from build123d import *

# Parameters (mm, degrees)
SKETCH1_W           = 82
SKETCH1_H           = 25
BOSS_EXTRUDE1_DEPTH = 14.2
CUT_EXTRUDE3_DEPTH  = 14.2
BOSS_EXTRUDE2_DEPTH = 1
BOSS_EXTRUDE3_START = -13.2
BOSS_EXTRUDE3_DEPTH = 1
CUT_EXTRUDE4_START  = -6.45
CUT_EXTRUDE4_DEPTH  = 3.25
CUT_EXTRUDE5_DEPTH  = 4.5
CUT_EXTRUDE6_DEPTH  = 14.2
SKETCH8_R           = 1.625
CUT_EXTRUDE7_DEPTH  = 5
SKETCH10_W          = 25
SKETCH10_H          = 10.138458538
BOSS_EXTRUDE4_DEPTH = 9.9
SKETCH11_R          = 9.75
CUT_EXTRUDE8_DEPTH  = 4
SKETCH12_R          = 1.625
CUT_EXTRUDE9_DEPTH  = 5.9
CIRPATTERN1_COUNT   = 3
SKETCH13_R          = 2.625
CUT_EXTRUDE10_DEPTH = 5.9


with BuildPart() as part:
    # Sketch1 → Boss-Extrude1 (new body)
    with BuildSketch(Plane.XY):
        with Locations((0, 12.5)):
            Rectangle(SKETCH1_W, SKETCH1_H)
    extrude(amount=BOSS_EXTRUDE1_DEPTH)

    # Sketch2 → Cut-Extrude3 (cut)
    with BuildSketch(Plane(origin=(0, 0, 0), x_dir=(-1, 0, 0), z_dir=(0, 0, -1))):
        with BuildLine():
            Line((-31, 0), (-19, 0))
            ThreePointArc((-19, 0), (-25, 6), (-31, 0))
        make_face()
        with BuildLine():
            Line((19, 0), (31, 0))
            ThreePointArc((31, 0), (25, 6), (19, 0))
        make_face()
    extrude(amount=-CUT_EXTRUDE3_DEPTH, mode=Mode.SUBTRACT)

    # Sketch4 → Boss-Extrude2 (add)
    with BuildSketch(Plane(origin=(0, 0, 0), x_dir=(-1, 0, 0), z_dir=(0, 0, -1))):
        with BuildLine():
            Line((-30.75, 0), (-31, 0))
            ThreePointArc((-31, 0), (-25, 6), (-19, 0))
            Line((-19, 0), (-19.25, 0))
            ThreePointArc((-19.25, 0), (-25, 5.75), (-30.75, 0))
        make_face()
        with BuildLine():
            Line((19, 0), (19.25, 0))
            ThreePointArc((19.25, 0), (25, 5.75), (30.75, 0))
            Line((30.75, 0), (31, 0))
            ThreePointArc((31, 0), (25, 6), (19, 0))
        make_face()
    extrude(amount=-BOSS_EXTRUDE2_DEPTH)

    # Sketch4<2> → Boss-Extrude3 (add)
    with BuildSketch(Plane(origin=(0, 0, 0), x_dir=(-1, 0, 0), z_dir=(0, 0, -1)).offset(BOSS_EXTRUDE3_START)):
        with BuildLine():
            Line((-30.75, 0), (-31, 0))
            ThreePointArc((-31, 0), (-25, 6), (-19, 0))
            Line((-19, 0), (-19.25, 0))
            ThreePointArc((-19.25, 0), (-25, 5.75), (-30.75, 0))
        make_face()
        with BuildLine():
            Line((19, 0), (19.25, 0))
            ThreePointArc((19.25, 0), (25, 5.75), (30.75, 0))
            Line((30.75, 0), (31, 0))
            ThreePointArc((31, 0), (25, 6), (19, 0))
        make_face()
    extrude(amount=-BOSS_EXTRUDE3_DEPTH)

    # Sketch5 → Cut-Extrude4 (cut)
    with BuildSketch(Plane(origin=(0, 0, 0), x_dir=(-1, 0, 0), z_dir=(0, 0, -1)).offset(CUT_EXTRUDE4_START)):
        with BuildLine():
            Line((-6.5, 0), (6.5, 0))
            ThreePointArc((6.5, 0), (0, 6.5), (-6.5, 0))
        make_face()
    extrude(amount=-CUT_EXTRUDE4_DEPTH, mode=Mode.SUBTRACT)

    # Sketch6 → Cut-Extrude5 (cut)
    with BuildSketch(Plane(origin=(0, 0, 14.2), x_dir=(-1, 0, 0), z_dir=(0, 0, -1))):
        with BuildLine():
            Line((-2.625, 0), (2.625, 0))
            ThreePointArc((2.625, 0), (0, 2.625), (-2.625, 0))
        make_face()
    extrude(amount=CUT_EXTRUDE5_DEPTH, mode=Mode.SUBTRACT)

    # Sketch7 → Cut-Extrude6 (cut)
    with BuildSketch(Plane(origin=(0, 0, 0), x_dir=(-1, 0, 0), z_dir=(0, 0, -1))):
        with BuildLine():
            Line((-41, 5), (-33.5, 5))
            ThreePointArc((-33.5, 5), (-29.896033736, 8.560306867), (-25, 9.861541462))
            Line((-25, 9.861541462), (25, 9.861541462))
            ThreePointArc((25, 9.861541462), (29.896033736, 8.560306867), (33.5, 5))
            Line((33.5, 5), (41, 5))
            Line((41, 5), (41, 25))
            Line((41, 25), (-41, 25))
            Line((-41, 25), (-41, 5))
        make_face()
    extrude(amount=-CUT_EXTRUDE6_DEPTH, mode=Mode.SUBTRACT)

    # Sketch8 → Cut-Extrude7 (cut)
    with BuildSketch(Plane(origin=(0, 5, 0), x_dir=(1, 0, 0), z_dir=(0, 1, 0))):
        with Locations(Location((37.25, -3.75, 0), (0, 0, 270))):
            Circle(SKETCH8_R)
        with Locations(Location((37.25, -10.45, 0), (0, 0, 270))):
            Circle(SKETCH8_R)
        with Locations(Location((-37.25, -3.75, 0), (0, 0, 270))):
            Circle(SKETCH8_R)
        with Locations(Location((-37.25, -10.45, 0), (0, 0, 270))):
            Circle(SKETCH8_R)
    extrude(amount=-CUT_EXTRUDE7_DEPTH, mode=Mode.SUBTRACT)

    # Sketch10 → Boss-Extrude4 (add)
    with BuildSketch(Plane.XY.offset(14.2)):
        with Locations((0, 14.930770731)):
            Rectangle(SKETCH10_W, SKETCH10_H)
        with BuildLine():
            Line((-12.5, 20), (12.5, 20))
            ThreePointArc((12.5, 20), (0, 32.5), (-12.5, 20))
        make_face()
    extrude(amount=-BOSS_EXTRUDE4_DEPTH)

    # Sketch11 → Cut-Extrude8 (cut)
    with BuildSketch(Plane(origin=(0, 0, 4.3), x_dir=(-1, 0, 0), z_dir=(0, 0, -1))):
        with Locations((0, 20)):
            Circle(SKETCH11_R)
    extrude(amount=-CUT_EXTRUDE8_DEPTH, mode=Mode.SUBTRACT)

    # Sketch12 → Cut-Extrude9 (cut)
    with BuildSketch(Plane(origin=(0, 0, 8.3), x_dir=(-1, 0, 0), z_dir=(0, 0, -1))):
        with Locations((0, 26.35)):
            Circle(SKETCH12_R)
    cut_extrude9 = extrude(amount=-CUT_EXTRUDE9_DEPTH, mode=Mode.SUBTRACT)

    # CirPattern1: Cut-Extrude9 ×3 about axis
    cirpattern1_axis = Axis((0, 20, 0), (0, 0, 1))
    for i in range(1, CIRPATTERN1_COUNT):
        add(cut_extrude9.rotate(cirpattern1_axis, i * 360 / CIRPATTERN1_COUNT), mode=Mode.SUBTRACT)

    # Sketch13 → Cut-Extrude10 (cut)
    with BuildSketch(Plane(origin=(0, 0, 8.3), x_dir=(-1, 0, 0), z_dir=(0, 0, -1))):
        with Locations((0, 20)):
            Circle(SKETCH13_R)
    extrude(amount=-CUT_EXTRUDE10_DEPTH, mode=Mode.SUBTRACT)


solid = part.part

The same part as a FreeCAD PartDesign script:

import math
import FreeCAD as App
import Part
import Sketcher
Q = App.Units.Quantity


def add_polygon(sketch, points):
    """Adds a closed chain of lines whose ends are joined by coincident constraints."""
    first, n = sketch.GeometryCount, len(points)
    for a, b in zip(points, points[1:] + points[:1]):
        sketch.addGeometry(Part.LineSegment(App.Vector(*a, 0), App.Vector(*b, 0)), False)
    for i in range(n):
        sketch.addConstraint(Sketcher.Constraint("Coincident", first + i, 2, first + (i + 1) % n, 1))

doc = App.newDocument("Part")
body = doc.addObject("PartDesign::Body", "Body")

sketch1 = body.newObject("Sketcher::SketchObject", "Sketch")
sketch1.AttachmentSupport = (doc.getObject("XY_Plane"), [""])
sketch1.MapMode = "FlatFace"
add_polygon(sketch1, [(-41, 25), (-41, 0), (41, 0), (41, 25)])
sketch1.addConstraint(Sketcher.Constraint("Vertical", 0))
sketch1.addConstraint(Sketcher.Constraint("Horizontal", 1))
sketch1.addConstraint(Sketcher.Constraint("Vertical", 2))
sketch1.addConstraint(Sketcher.Constraint("Horizontal", 3))
sketch1.addConstraint(Sketcher.Constraint("Symmetric", 0, 2, 1, 2, -1, 1))
sketch1.addConstraint(Sketcher.Constraint("DistanceX", 1, 1, 1, 2, Q("82 mm")))
sketch1.addConstraint(Sketcher.Constraint("DistanceY", 0, 2, 0, 1, Q("25 mm")))
pad1 = body.newObject("PartDesign::Pad", "Pad")
pad1.Profile = sketch1
pad1.Length = 14.2

sketch2 = body.newObject("Sketcher::SketchObject", "Sketch001")
sketch2.AttachmentSupport = (doc.getObject("XY_Plane"), [""])
sketch2.MapMode = "FlatFace"
sketch2.addGeometry(Part.LineSegment(App.Vector(31, 0, 0), App.Vector(19, 0, 0)), False)
sketch2.addGeometry(Part.ArcOfCircle(Part.Circle(App.Vector(25, 0, 0), App.Vector(0, 0, 1), 6), math.radians(0), math.radians(180)), False)
sketch2.addGeometry(Part.LineSegment(App.Vector(-19, 0, 0), App.Vector(-31, 0, 0)), False)
sketch2.addGeometry(Part.ArcOfCircle(Part.Circle(App.Vector(-25, 0, 0), App.Vector(0, 0, 1), 6), math.radians(0), math.radians(180)), False)
sketch2.addConstraint(Sketcher.Constraint("Coincident", 0, 1, 1, 1))
sketch2.addConstraint(Sketcher.Constraint("Coincident", 1, 2, 0, 2))
sketch2.addConstraint(Sketcher.Constraint("Coincident", 2, 1, 3, 1))
sketch2.addConstraint(Sketcher.Constraint("Coincident", 3, 2, 2, 2))
sketch2.addConstraint(Sketcher.Constraint("Horizontal", 0))
sketch2.addConstraint(Sketcher.Constraint("Horizontal", 2))
sketch2.addConstraint(Sketcher.Constraint("Equal", 1, 3))
sketch2.addConstraint(Sketcher.Constraint("Symmetric", 1, 3, 3, 3, -1, 1))
sketch2.addConstraint(Sketcher.Constraint("PointOnObject", 1, 3, -1))
sketch2.addConstraint(Sketcher.Constraint("PointOnObject", 0, 1, -1))
sketch2.addConstraint(Sketcher.Constraint("PointOnObject", 2, 1, -1))
sketch2.addConstraint(Sketcher.Constraint("Radius", 1, Q("6 mm")))
sketch2.addConstraint(Sketcher.Constraint("DistanceX", -1, 1, 1, 3, Q("25 mm")))
pocket1 = body.newObject("PartDesign::Pocket", "Pocket")
pocket1.Profile = sketch2
pocket1.Length = 14.2
pocket1.Reversed = True

sketch3 = body.newObject("Sketcher::SketchObject", "Sketch002")
sketch3.AttachmentSupport = (doc.getObject("XY_Plane"), [""])
sketch3.MapMode = "FlatFace"
sketch3.addGeometry(Part.LineSegment(App.Vector(31, 0, 0), App.Vector(30.75, 0, 0)), False)
sketch3.addGeometry(Part.ArcOfCircle(Part.Circle(App.Vector(25, 0, 0), App.Vector(0, 0, 1), 5.75), math.radians(0), math.radians(180)), False)
sketch3.addGeometry(Part.LineSegment(App.Vector(19.25, 0, 0), App.Vector(19, 0, 0)), False)
sketch3.addGeometry(Part.ArcOfCircle(Part.Circle(App.Vector(25, 0, 0), App.Vector(0, 0, 1), 6), math.radians(0), math.radians(180)), False)
sketch3.addGeometry(Part.LineSegment(App.Vector(-19, 0, 0), App.Vector(-19.25, 0, 0)), False)
sketch3.addGeometry(Part.ArcOfCircle(Part.Circle(App.Vector(-25, 0, 0), App.Vector(0, 0, 1), 5.75), math.radians(0), math.radians(180)), False)
sketch3.addGeometry(Part.LineSegment(App.Vector(-30.75, 0, 0), App.Vector(-31, 0, 0)), False)
sketch3.addGeometry(Part.ArcOfCircle(Part.Circle(App.Vector(-25, 0, 0), App.Vector(0, 0, 1), 6), math.radians(0), math.radians(180)), False)
sketch3.addConstraint(Sketcher.Constraint("Coincident", 0, 2, 1, 1))
sketch3.addConstraint(Sketcher.Constraint("Coincident", 1, 2, 2, 1))
sketch3.addConstraint(Sketcher.Constraint("Coincident", 2, 2, 3, 2))
sketch3.addConstraint(Sketcher.Constraint("Coincident", 3, 1, 0, 1))
sketch3.addConstraint(Sketcher.Constraint("Coincident", 4, 2, 5, 1))
sketch3.addConstraint(Sketcher.Constraint("Coincident", 5, 2, 6, 1))
sketch3.addConstraint(Sketcher.Constraint("Coincident", 6, 2, 7, 2))
sketch3.addConstraint(Sketcher.Constraint("Coincident", 7, 1, 4, 1))
sketch3.addConstraint(Sketcher.Constraint("Horizontal", 0))
sketch3.addConstraint(Sketcher.Constraint("Horizontal", 2))
sketch3.addConstraint(Sketcher.Constraint("Horizontal", 4))
sketch3.addConstraint(Sketcher.Constraint("Horizontal", 6))
sketch3.addConstraint(Sketcher.Constraint("Coincident", 3, 3, 1, 3))
sketch3.addConstraint(Sketcher.Constraint("Coincident", 7, 3, 5, 3))
sketch3.addConstraint(Sketcher.Constraint("Equal", 1, 5))
sketch3.addConstraint(Sketcher.Constraint("Equal", 3, 7))
sketch3.addConstraint(Sketcher.Constraint("Symmetric", 1, 3, 5, 3, -1, 1))
sketch3.addConstraint(Sketcher.Constraint("PointOnObject", 1, 3, -1))
sketch3.addConstraint(Sketcher.Constraint("PointOnObject", 0, 2, -1))
sketch3.addConstraint(Sketcher.Constraint("PointOnObject", 1, 2, -1))
sketch3.addConstraint(Sketcher.Constraint("PointOnObject", 4, 2, -1))
sketch3.addConstraint(Sketcher.Constraint("PointOnObject", 5, 2, -1))
sketch3.addConstraint(Sketcher.Constraint("Radius", 3, Q("6 mm")))
sketch3.addConstraint(Sketcher.Constraint("Radius", 1, Q("5.75 mm")))
sketch3.addConstraint(Sketcher.Constraint("DistanceX", -1, 1, 1, 3, Q("25 mm")))
pad2 = body.newObject("PartDesign::Pad", "Pad001")
pad2.Profile = sketch3
pad2.Length = 1

sketch4 = body.newObject("Sketcher::SketchObject", "Sketch003")
sketch4.AttachmentSupport = (doc.getObject("XY_Plane"), [""])
sketch4.MapMode = "FlatFace"
sketch4.AttachmentOffset = App.Placement(App.Vector(0, 0, 13.2), App.Rotation())
sketch4.addGeometry(Part.LineSegment(App.Vector(31, 0, 0), App.Vector(30.75, 0, 0)), False)
sketch4.addGeometry(Part.ArcOfCircle(Part.Circle(App.Vector(25, 0, 0), App.Vector(0, 0, 1), 5.75), math.radians(0), math.radians(180)), False)
sketch4.addGeometry(Part.LineSegment(App.Vector(19.25, 0, 0), App.Vector(19, 0, 0)), False)
sketch4.addGeometry(Part.ArcOfCircle(Part.Circle(App.Vector(25, 0, 0), App.Vector(0, 0, 1), 6), math.radians(0), math.radians(180)), False)
sketch4.addGeometry(Part.LineSegment(App.Vector(-19, 0, 0), App.Vector(-19.25, 0, 0)), False)
sketch4.addGeometry(Part.ArcOfCircle(Part.Circle(App.Vector(-25, 0, 0), App.Vector(0, 0, 1), 5.75), math.radians(0), math.radians(180)), False)
sketch4.addGeometry(Part.LineSegment(App.Vector(-30.75, 0, 0), App.Vector(-31, 0, 0)), False)
sketch4.addGeometry(Part.ArcOfCircle(Part.Circle(App.Vector(-25, 0, 0), App.Vector(0, 0, 1), 6), math.radians(0), math.radians(180)), False)
sketch4.addConstraint(Sketcher.Constraint("Coincident", 0, 2, 1, 1))
sketch4.addConstraint(Sketcher.Constraint("Coincident", 1, 2, 2, 1))
sketch4.addConstraint(Sketcher.Constraint("Coincident", 2, 2, 3, 2))
sketch4.addConstraint(Sketcher.Constraint("Coincident", 3, 1, 0, 1))
sketch4.addConstraint(Sketcher.Constraint("Coincident", 4, 2, 5, 1))
sketch4.addConstraint(Sketcher.Constraint("Coincident", 5, 2, 6, 1))
sketch4.addConstraint(Sketcher.Constraint("Coincident", 6, 2, 7, 2))
sketch4.addConstraint(Sketcher.Constraint("Coincident", 7, 1, 4, 1))
sketch4.addConstraint(Sketcher.Constraint("Horizontal", 0))
sketch4.addConstraint(Sketcher.Constraint("Horizontal", 2))
sketch4.addConstraint(Sketcher.Constraint("Horizontal", 4))
sketch4.addConstraint(Sketcher.Constraint("Horizontal", 6))
sketch4.addConstraint(Sketcher.Constraint("Coincident", 3, 3, 1, 3))
sketch4.addConstraint(Sketcher.Constraint("Coincident", 7, 3, 5, 3))
sketch4.addConstraint(Sketcher.Constraint("Equal", 1, 5))
sketch4.addConstraint(Sketcher.Constraint("Equal", 3, 7))
sketch4.addConstraint(Sketcher.Constraint("Symmetric", 1, 3, 5, 3, -1, 1))
sketch4.addConstraint(Sketcher.Constraint("PointOnObject", 1, 3, -1))
sketch4.addConstraint(Sketcher.Constraint("PointOnObject", 0, 2, -1))
sketch4.addConstraint(Sketcher.Constraint("PointOnObject", 1, 2, -1))
sketch4.addConstraint(Sketcher.Constraint("PointOnObject", 4, 2, -1))
sketch4.addConstraint(Sketcher.Constraint("PointOnObject", 5, 2, -1))
sketch4.addConstraint(Sketcher.Constraint("Radius", 3, Q("6 mm")))
sketch4.addConstraint(Sketcher.Constraint("Radius", 1, Q("5.75 mm")))
sketch4.addConstraint(Sketcher.Constraint("DistanceX", -1, 1, 1, 3, Q("25 mm")))
pad3 = body.newObject("PartDesign::Pad", "Pad002")
pad3.Profile = sketch4
pad3.Length = 1

sketch5 = body.newObject("Sketcher::SketchObject", "Sketch004")
sketch5.AttachmentSupport = (doc.getObject("XY_Plane"), [""])
sketch5.MapMode = "FlatFace"
sketch5.AttachmentOffset = App.Placement(App.Vector(0, 0, 6.45), App.Rotation())
sketch5.addGeometry(Part.LineSegment(App.Vector(6, 0, 0), App.Vector(-6, 0, 0)), False)
sketch5.addGeometry(Part.ArcOfCircle(Part.Circle(App.Vector(0, 0, 0), App.Vector(0, 0, 1), 6), math.radians(0), math.radians(180)), False)
sketch5.addConstraint(Sketcher.Constraint("Coincident", 0, 1, 1, 1))
sketch5.addConstraint(Sketcher.Constraint("Coincident", 1, 2, 0, 2))
sketch5.addConstraint(Sketcher.Constraint("Horizontal", 0))
sketch5.addConstraint(Sketcher.Constraint("Coincident", 1, 3, -1, 1))
sketch5.addConstraint(Sketcher.Constraint("PointOnObject", 0, 1, -1))
sketch5.addConstraint(Sketcher.Constraint("Radius", 1, Q("6.5 mm")))
pocket2 = body.newObject("PartDesign::Pocket", "Pocket001")
pocket2.Profile = sketch5
pocket2.Length = 3.25
pocket2.Reversed = True

sketch6 = body.newObject("Sketcher::SketchObject", "Sketch005")
sketch6.AttachmentSupport = (doc.getObject("XY_Plane"), [""])
sketch6.MapMode = "FlatFace"
sketch6.AttachmentOffset = App.Placement(App.Vector(0, 0, 14.2), App.Rotation())
sketch6.addGeometry(Part.LineSegment(App.Vector(2.6, 0, 0), App.Vector(-2.6, 0, 0)), False)
sketch6.addGeometry(Part.ArcOfCircle(Part.Circle(App.Vector(0, 0, 0), App.Vector(0, 0, 1), 2.6), math.radians(0), math.radians(180)), False)
sketch6.addConstraint(Sketcher.Constraint("Coincident", 0, 1, 1, 1))
sketch6.addConstraint(Sketcher.Constraint("Coincident", 1, 2, 0, 2))
sketch6.addConstraint(Sketcher.Constraint("Horizontal", 0))
sketch6.addConstraint(Sketcher.Constraint("Coincident", 1, 3, -1, 1))
sketch6.addConstraint(Sketcher.Constraint("PointOnObject", 0, 1, -1))
sketch6.addConstraint(Sketcher.Constraint("Radius", 1, Q("2.625 mm")))
pocket3 = body.newObject("PartDesign::Pocket", "Pocket002")
pocket3.Profile = sketch6
pocket3.Length = 4.5

sketch7 = body.newObject("Sketcher::SketchObject", "Sketch006")
sketch7.AttachmentSupport = (doc.getObject("XY_Plane"), [""])
sketch7.MapMode = "FlatFace"
sketch7.addGeometry(Part.LineSegment(App.Vector(41, 5, 0), App.Vector(34, 5, 0)), False)
sketch7.addGeometry(Part.ArcOfCircle(Part.Circle(App.Vector(25, 0, 0), App.Vector(0, 0, 1), 10), math.radians(30), math.radians(90)), False)
sketch7.addGeometry(Part.LineSegment(App.Vector(25, 10, 0), App.Vector(-25, 10, 0)), False)
sketch7.addGeometry(Part.ArcOfCircle(Part.Circle(App.Vector(-25, 0, 0), App.Vector(0, 0, 1), 10), math.radians(90), math.radians(150)), False)
sketch7.addGeometry(Part.LineSegment(App.Vector(-34, 5, 0), App.Vector(-41, 5, 0)), False)
sketch7.addGeometry(Part.LineSegment(App.Vector(-41, 5, 0), App.Vector(-41, 25, 0)), False)
sketch7.addGeometry(Part.LineSegment(App.Vector(-41, 25, 0), App.Vector(41, 25, 0)), False)
sketch7.addGeometry(Part.LineSegment(App.Vector(41, 25, 0), App.Vector(41, 5, 0)), False)
sketch7.addConstraint(Sketcher.Constraint("Coincident", 0, 2, 1, 1))
sketch7.addConstraint(Sketcher.Constraint("Tangent", 1, 2, 2, 1))
sketch7.addConstraint(Sketcher.Constraint("Tangent", 2, 2, 3, 1))
sketch7.addConstraint(Sketcher.Constraint("Coincident", 3, 2, 4, 1))
sketch7.addConstraint(Sketcher.Constraint("Coincident", 4, 2, 5, 1))
sketch7.addConstraint(Sketcher.Constraint("Coincident", 5, 2, 6, 1))
sketch7.addConstraint(Sketcher.Constraint("Coincident", 6, 2, 7, 1))
sketch7.addConstraint(Sketcher.Constraint("Coincident", 7, 2, 0, 1))
sketch7.addConstraint(Sketcher.Constraint("Horizontal", 0))
sketch7.addConstraint(Sketcher.Constraint("Horizontal", 2))
sketch7.addConstraint(Sketcher.Constraint("Horizontal", 4))
sketch7.addConstraint(Sketcher.Constraint("Vertical", 5))
sketch7.addConstraint(Sketcher.Constraint("Horizontal", 6))
sketch7.addConstraint(Sketcher.Constraint("Vertical", 7))
sketch7.addConstraint(Sketcher.Constraint("Equal", 1, 3))
sketch7.addConstraint(Sketcher.Constraint("Symmetric", 1, 3, 3, 3, -1, 1))
sketch7.addConstraint(Sketcher.Constraint("Symmetric", 4, 2, 7, 2, -2))
sketch7.addConstraint(Sketcher.Constraint("DistanceX", 2, 2, 2, 1, Q("50 mm")))
sketch7.addConstraint(Sketcher.Constraint("DistanceX", 6, 1, 6, 2, Q("82 mm")))
sketch7.addConstraint(Sketcher.Constraint("DistanceY", 5, 1, 5, 2, Q("20 mm")))
sketch7.addConstraint(Sketcher.Constraint("DistanceX", 0, 2, 0, 1, Q("7.5 mm")))
sketch7.addConstraint(Sketcher.Constraint("DistanceY", -1, 1, 0, 2, Q("5 mm")))
pocket4 = body.newObject("PartDesign::Pocket", "Pocket003")
pocket4.Profile = sketch7
pocket4.Length = 14.2
pocket4.Reversed = True

sketch8 = body.newObject("Sketcher::SketchObject", "Sketch007")
sketch8.AttachmentSupport = (doc.getObject("XZ_Plane"), [""])
sketch8.MapMode = "FlatFace"
sketch8.AttachmentOffset = App.Placement(App.Vector(0, 0, -5), App.Rotation())
sketch8.addGeometry(Part.Circle(App.Vector(37.2, 3.8, 0), App.Vector(0, 0, 1), 1.6), False)
sketch8.addGeometry(Part.Circle(App.Vector(37.2, 10.4, 0), App.Vector(0, 0, 1), 1.6), False)
sketch8.addGeometry(Part.Circle(App.Vector(-37.2, 3.8, 0), App.Vector(0, 0, 1), 1.6), False)
sketch8.addGeometry(Part.Circle(App.Vector(-37.2, 10.4, 0), App.Vector(0, 0, 1), 1.6), False)
sketch8.addConstraint(Sketcher.Constraint("Equal", 0, 1))
sketch8.addConstraint(Sketcher.Constraint("Equal", 1, 2))
sketch8.addConstraint(Sketcher.Constraint("Equal", 2, 3))
sketch8.addConstraint(Sketcher.Constraint("Symmetric", 0, 3, 2, 3, -2))
sketch8.addConstraint(Sketcher.Constraint("Symmetric", 1, 3, 3, 3, -2))
sketch8.addConstraint(Sketcher.Constraint("Vertical", 0, 3, 1, 3))
sketch8.addConstraint(Sketcher.Constraint("Diameter", 0, Q("3.25 mm")))
sketch8.addConstraint(Sketcher.Constraint("DistanceY", 0, 3, 1, 3, Q("6.7 mm")))
sketch8.addConstraint(Sketcher.Constraint("DistanceX", 2, 3, 0, 3, Q("74.5 mm")))
sketch8.addConstraint(Sketcher.Constraint("DistanceY", -1, 1, 0, 3, Q("3.75 mm")))
pocket5 = body.newObject("PartDesign::Pocket", "Pocket004")
pocket5.Profile = sketch8
pocket5.Length = 5
pocket5.Reversed = True

sketch9 = body.newObject("Sketcher::SketchObject", "Sketch008")
sketch9.AttachmentSupport = (doc.getObject("XY_Plane"), [""])
sketch9.MapMode = "FlatFace"
sketch9.AttachmentOffset = App.Placement(App.Vector(0, 0, 14.2), App.Rotation())
sketch9.addGeometry(Part.LineSegment(App.Vector(-12, 20, 0), App.Vector(-12, 10, 0)), False)
sketch9.addGeometry(Part.LineSegment(App.Vector(-12, 10, 0), App.Vector(12, 10, 0)), False)
sketch9.addGeometry(Part.LineSegment(App.Vector(12, 10, 0), App.Vector(12, 20, 0)), False)
sketch9.addGeometry(Part.ArcOfCircle(Part.Circle(App.Vector(0, 20, 0), App.Vector(0, 0, 1), 12), math.radians(0), math.radians(180)), False)
sketch9.addConstraint(Sketcher.Constraint("Coincident", 0, 2, 1, 1))
sketch9.addConstraint(Sketcher.Constraint("Coincident", 1, 2, 2, 1))
sketch9.addConstraint(Sketcher.Constraint("Tangent", 2, 2, 3, 1))
sketch9.addConstraint(Sketcher.Constraint("Tangent", 3, 2, 0, 1))
sketch9.addConstraint(Sketcher.Constraint("Vertical", 0))
sketch9.addConstraint(Sketcher.Constraint("Horizontal", 1))
sketch9.addConstraint(Sketcher.Constraint("Vertical", 2))
sketch9.addConstraint(Sketcher.Constraint("PointOnObject", 3, 3, -2))
sketch9.addConstraint(Sketcher.Constraint("Radius", 3, Q("12.5 mm")))
sketch9.addConstraint(Sketcher.Constraint("DistanceY", -1, 1, 3, 3, Q("20 mm")))
sketch9.addConstraint(Sketcher.Constraint("DistanceY", 0, 2, 0, 1, Q("10.138459 mm")))
pad4 = body.newObject("PartDesign::Pad", "Pad003")
pad4.Profile = sketch9
pad4.Length = 9.9
pad4.Reversed = True

sketch10 = body.newObject("Sketcher::SketchObject", "Sketch009")
sketch10.AttachmentSupport = (doc.getObject("XY_Plane"), [""])
sketch10.MapMode = "FlatFace"
sketch10.AttachmentOffset = App.Placement(App.Vector(0, 0, 4.3), App.Rotation())
sketch10.addGeometry(Part.Circle(App.Vector(0, 20, 0), App.Vector(0, 0, 1), 10), False)
sketch10.addConstraint(Sketcher.Constraint("PointOnObject", 0, 3, -2))
sketch10.addConstraint(Sketcher.Constraint("Diameter", 0, Q("19.5 mm")))
sketch10.addConstraint(Sketcher.Constraint("DistanceY", -1, 1, 0, 3, Q("20 mm")))
pocket6 = body.newObject("PartDesign::Pocket", "Pocket005")
pocket6.Profile = sketch10
pocket6.Length = 4
pocket6.Reversed = True

sketch11 = body.newObject("Sketcher::SketchObject", "Sketch010")
sketch11.AttachmentSupport = (doc.getObject("XY_Plane"), [""])
sketch11.MapMode = "FlatFace"
sketch11.AttachmentOffset = App.Placement(App.Vector(0, 0, 8.3), App.Rotation())
sketch11.addGeometry(Part.Circle(App.Vector(0, 26.4, 0), App.Vector(0, 0, 1), 1.6), False)
sketch11.addConstraint(Sketcher.Constraint("PointOnObject", 0, 3, -2))
sketch11.addConstraint(Sketcher.Constraint("Diameter", 0, Q("3.25 mm")))
sketch11.addConstraint(Sketcher.Constraint("DistanceY", -1, 1, 0, 3, Q("26.35 mm")))
pocket7 = body.newObject("PartDesign::Pocket", "Pocket006")
pocket7.Profile = sketch11
pocket7.Length = 5.9
pocket7.Reversed = True
doc.recompute()

datumline = body.newObject("PartDesign::Line", "DatumLine")
datumline.Placement = App.Placement(App.Vector(0, 20, 0), App.Rotation(App.Vector(0, 0, 1), App.Vector(0, 0, 1)))
polarpattern = body.newObject("PartDesign::PolarPattern", "PolarPattern")
polarpattern.Originals = [pocket7]
polarpattern.Axis = (datumline, [""])
polarpattern.Angle = 360
polarpattern.Occurrences = 3
body.Tip = polarpattern

sketch12 = body.newObject("Sketcher::SketchObject", "Sketch011")
sketch12.AttachmentSupport = (doc.getObject("XY_Plane"), [""])
sketch12.MapMode = "FlatFace"
sketch12.AttachmentOffset = App.Placement(App.Vector(0, 0, 8.3), App.Rotation())
sketch12.addGeometry(Part.Circle(App.Vector(0, 20, 0), App.Vector(0, 0, 1), 2.6), False)
sketch12.addConstraint(Sketcher.Constraint("PointOnObject", 0, 3, -2))
sketch12.addConstraint(Sketcher.Constraint("Diameter", 0, Q("5.25 mm")))
sketch12.addConstraint(Sketcher.Constraint("DistanceY", -1, 1, 0, 3, Q("20 mm")))
pocket8 = body.newObject("PartDesign::Pocket", "Pocket007")
pocket8.Profile = sketch12
pocket8.Length = 5.9
pocket8.Reversed = True

doc.recompute()
